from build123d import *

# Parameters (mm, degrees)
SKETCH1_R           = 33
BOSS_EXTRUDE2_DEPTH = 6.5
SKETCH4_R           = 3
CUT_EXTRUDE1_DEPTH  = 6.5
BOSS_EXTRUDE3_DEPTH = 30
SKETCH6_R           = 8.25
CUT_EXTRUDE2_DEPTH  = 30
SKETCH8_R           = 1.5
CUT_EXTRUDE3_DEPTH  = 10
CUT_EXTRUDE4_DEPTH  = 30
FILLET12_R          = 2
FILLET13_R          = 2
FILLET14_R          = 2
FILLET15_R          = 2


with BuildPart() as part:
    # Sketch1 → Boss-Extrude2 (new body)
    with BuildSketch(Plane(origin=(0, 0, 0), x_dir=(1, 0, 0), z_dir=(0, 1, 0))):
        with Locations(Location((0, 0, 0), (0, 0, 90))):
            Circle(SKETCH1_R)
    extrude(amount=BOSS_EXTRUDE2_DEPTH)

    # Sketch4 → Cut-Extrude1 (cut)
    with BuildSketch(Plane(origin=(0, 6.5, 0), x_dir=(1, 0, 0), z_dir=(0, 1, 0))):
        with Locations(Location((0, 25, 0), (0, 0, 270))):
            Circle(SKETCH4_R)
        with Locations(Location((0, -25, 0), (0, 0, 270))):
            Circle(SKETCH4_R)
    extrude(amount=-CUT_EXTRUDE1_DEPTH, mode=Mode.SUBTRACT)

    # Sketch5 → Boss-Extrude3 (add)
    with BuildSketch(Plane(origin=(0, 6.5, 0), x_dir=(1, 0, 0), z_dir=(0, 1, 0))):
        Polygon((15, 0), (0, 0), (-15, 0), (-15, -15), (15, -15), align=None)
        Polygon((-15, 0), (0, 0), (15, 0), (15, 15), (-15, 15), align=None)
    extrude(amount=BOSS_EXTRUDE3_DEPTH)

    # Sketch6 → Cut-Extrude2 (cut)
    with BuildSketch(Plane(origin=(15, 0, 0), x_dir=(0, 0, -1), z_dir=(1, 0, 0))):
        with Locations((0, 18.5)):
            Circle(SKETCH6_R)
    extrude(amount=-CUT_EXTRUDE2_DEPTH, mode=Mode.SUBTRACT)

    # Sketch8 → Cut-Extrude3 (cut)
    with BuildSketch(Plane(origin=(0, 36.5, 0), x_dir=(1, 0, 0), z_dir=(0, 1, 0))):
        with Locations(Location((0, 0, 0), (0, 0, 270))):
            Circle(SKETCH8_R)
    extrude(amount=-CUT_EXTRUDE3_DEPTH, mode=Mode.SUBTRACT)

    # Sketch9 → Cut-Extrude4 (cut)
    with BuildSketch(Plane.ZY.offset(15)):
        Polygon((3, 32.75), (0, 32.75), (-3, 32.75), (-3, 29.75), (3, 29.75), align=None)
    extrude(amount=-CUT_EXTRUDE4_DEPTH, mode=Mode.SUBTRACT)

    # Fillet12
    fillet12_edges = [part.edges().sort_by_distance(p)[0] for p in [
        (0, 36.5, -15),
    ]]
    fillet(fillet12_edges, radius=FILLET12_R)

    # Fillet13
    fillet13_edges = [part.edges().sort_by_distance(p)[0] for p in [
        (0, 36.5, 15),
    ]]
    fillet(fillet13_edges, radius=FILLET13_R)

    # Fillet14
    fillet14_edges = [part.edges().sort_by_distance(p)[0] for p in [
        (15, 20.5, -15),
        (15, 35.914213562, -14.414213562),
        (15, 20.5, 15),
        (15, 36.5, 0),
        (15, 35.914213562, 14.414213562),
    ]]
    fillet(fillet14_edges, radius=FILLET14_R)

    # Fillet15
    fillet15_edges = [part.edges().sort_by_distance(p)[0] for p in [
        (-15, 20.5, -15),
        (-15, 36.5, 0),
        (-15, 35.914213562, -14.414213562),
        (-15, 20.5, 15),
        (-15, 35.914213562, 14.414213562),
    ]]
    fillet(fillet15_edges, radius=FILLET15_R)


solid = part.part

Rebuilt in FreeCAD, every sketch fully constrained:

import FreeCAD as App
import Part
import Sketcher

V = App.Vector
Q = App.Units.Quantity


def edges_at(feature, points):
    """Names of the edges that pass closest to the given points."""
    edges = feature.Shape.Edges
    near = lambda p: min(range(len(edges)), key=lambda i: edges[i].distToShape(Part.Vertex(*p))[0])
    return sorted({f"Edge{near(p) + 1}" for p in points})


def add_polygon(sketch, points):
    """Adds a closed chain of lines whose ends are joined by coincident constraints."""
    first, n = sketch.GeometryCount, len(points)
    for a, b in zip(points, points[1:] + points[:1]):
        sketch.addGeometry(Part.LineSegment(App.Vector(*a, 0), App.Vector(*b, 0)), False)
    for i in range(n):
        sketch.addConstraint(Sketcher.Constraint("Coincident", first + i, 2, first + (i + 1) % n, 1))

doc = App.newDocument("Part")
body = doc.addObject("PartDesign::Body", "Body")

sketch1 = body.newObject("Sketcher::SketchObject", "Sketch")
sketch1.AttachmentSupport = (doc.getObject("XZ_Plane"), [""])
sketch1.MapMode = "FlatFace"
sketch1.addGeometry(Part.Circle(V(0, 0, 0), V(0, 0, 1), 33), False)
sketch1.addConstraint([
    Sketcher.Constraint("Coincident", 0, 3, -1, 1),
    Sketcher.Constraint("Diameter", 0, Q("66 mm")),
])
pad1 = body.newObject("PartDesign::Pad", "Pad")
pad1.Profile = sketch1
pad1.Length = 6.5
pad1.Reversed = True

sketch2 = body.newObject("Sketcher::SketchObject", "Sketch001")
sketch2.AttachmentSupport = (doc.getObject("XZ_Plane"), [""])
sketch2.MapMode = "FlatFace"
sketch2.AttachmentOffset = App.Placement(V(0, 0, -6.5), App.Rotation())
sketch2.addGeometry([
    Part.Circle(V(0, -25, 0), V(0, 0, 1), 3),
    Part.Circle(V(0, 25, 0), V(0, 0, 1), 3),
], False)
sketch2.addConstraint([
    Sketcher.Constraint("Equal", 0, 1),
    Sketcher.Constraint("Symmetric", 0, 3, 1, 3, -1, 1),
    Sketcher.Constraint("PointOnObject", 0, 3, -2),
    Sketcher.Constraint("Diameter", 0, Q("6 mm")),
    Sketcher.Constraint("DistanceY", 0, 3, -1, 1, Q("25 mm")),
])
pocket1 = body.newObject("PartDesign::Pocket", "Pocket")
pocket1.Profile = sketch2
pocket1.Length = 6.5
pocket1.Reversed = True

sketch3 = body.newObject("Sketcher::SketchObject", "Sketch002")
sketch3.AttachmentSupport = (doc.getObject("XZ_Plane"), [""])
sketch3.MapMode = "FlatFace"
sketch3.AttachmentOffset = App.Placement(V(0, 0, -6.5), App.Rotation())
add_polygon(sketch3, [(-15, 15), (15, 15), (15, -15), (-15, -15)])
sketch3.addConstraint([
    Sketcher.Constraint("Horizontal", 0),
    Sketcher.Constraint("Vertical", 1),
    Sketcher.Constraint("Horizontal", 2),
    Sketcher.Constraint("Vertical", 3),
    Sketcher.Constraint("Symmetric", 0, 2, 2, 2, -1, 1),
    Sketcher.Constraint("Equal", 2, 1),
    Sketcher.Constraint("DistanceX", 0, 1, 0, 2, Q("30 mm")),
])
pad2 = body.newObject("PartDesign::Pad", "Pad001")
pad2.Profile = sketch3
pad2.Length = 30
pad2.Reversed = True

sketch4 = body.newObject("Sketcher::SketchObject", "Sketch003")
sketch4.AttachmentSupport = (doc.getObject("YZ_Plane"), [""])
sketch4.MapMode = "FlatFace"
sketch4.AttachmentOffset = App.Placement(V(0, 0, 15), App.Rotation())
sketch4.addGeometry(Part.Circle(V(18.5, 0, 0), V(0, 0, 1), 8.25), False)
sketch4.addConstraint([
    Sketcher.Constraint("PointOnObject", 0, 3, -1),
    Sketcher.Constraint("Diameter", 0, Q("16.5 mm")),
    Sketcher.Constraint("DistanceX", -1, 1, 0, 3, Q("18.5 mm")),
])
pocket2 = body.newObject("PartDesign::Pocket", "Pocket001")
pocket2.Profile = sketch4
pocket2.Length = 30

sketch5 = body.newObject("Sketcher::SketchObject", "Sketch004")
sketch5.AttachmentSupport = (doc.getObject("XZ_Plane"), [""])
sketch5.MapMode = "FlatFace"
sketch5.AttachmentOffset = App.Placement(V(0, 0, -36.5), App.Rotation())
sketch5.addGeometry(Part.Circle(V(0, 0, 0), V(0, 0, 1), 1.5), False)
sketch5.addConstraint([
    Sketcher.Constraint("Coincident", 0, 3, -1, 1),
    Sketcher.Constraint("Diameter", 0, Q("3 mm")),
])
pocket3 = body.newObject("PartDesign::Pocket", "Pocket002")
pocket3.Profile = sketch5
pocket3.Length = 10
pocket3.Reversed = True

sketch6 = body.newObject("Sketcher::SketchObject", "Sketch005")
sketch6.AttachmentSupport = (doc.getObject("YZ_Plane"), [""])
sketch6.MapMode = "FlatFace"
sketch6.AttachmentOffset = App.Placement(V(0, 0, -15), App.Rotation())
add_polygon(sketch6, [(32.75, 3), (32.75, -3), (29.75, -3), (29.75, 3)])
sketch6.addConstraint([
    Sketcher.Constraint("Vertical", 0),
    Sketcher.Constraint("Horizontal", 1),
    Sketcher.Constraint("Vertical", 2),
    Sketcher.Constraint("Horizontal", 3),
    Sketcher.Constraint("DistanceX", 1, 2, 1, 1, Q("3 mm")),
    Sketcher.Constraint("DistanceY", 0, 2, 0, 1, Q("6 mm")),
    Sketcher.Constraint("DistanceY", 0, 2, -1, 1, Q("3 mm")),
    Sketcher.Constraint("DistanceX", -1, 1, 0, 2, Q("32.75 mm")),
])
pocket4 = body.newObject("PartDesign::Pocket", "Pocket003")
pocket4.Profile = sketch6
pocket4.Length = 30
pocket4.Reversed = True
doc.recompute()

fillet = body.newObject("PartDesign::Fillet", "Fillet")
fillet.Base = (pocket4, edges_at(pocket4, [(0, 36.5, -15)]))
fillet.Radius = 2
doc.recompute()

fillet2 = body.newObject("PartDesign::Fillet", "Fillet001")
fillet2.Base = (fillet, edges_at(fillet, [(0, 36.5, 15)]))
fillet2.Radius = 2
doc.recompute()

fillet3 = body.newObject("PartDesign::Fillet", "Fillet002")
fillet3.Base = (fillet2, edges_at(fillet2, [
    (15, 20.5, -15),
    (15, 35.914, -14.414),
    (15, 20.5, 15),
    (15, 36.5, 0),
    (15, 35.914, 14.414),
]))
fillet3.Radius = 2
doc.recompute()

fillet4 = body.newObject("PartDesign::Fillet", "Fillet003")
fillet4.Base = (fillet3, edges_at(fillet3, [
    (-15, 20.5, -15),
    (-15, 36.5, 0),
    (-15, 35.914, -14.414),
    (-15, 20.5, 15),
    (-15, 35.914, 14.414),
]))
fillet4.Radius = 2

doc.recompute()
